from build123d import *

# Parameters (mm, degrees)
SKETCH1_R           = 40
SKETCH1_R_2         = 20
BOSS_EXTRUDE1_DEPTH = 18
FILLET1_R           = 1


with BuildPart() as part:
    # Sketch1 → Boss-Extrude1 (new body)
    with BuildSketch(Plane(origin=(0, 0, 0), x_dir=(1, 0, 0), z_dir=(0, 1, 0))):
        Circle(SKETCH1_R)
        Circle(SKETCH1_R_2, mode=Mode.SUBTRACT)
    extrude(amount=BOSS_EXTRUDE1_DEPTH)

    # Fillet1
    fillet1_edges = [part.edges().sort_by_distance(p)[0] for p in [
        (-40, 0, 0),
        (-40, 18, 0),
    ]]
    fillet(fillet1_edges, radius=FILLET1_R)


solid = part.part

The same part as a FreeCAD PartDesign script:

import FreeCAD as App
import Part
import Sketcher

V = App.Vector
Q = App.Units.Quantity


def edges_at(feature, points):
    """Names of the edges that pass closest to the given points."""
    edges = feature.Shape.Edges
    near = lambda p: min(range(len(edges)), key=lambda i: edges[i].distToShape(Part.Vertex(*p))[0])
    return sorted({f"Edge{near(p) + 1}" for p in points})

doc = App.newDocument("Part")
body = doc.addObject("PartDesign::Body", "Body")

# Sketch on XZ plane
sketch1 = doc.addObject("Sketcher::SketchObject", "Sketch")
body.addObject(sketch1)
sketch1.AttachmentSupport = (doc.XZ_Plane, [""])
sketch1.MapMode = "FlatFace"
sketch1.addGeometry(Part.Circle(V(0, 0, 0), V(0, 0, 1), 40), False)
sketch1.addGeometry(Part.Circle(V(0, 0, 0), V(0, 0, 1), 20), False)
sketch1.addConstraint(Sketcher.Constraint("Coincident", 0, 3, -1, 1))
sketch1.addConstraint(Sketcher.Constraint("Coincident", 1, 3, -1, 1))
sketch1.addConstraint(Sketcher.Constraint("Diameter", 0, Q("80 mm")))
sketch1.addConstraint(Sketcher.Constraint("Diameter", 1, Q("40 mm")))
pad1 = doc.addObject("PartDesign::Pad", "Pad")
body.addObject(pad1)
pad1.Profile = sketch1
pad1.Length = 18
pad1.Reversed = True
doc.recompute()

fillet = doc.addObject("PartDesign::Fillet", "Fillet")
body.addObject(fillet)
fillet.Base = (pad1, edges_at(pad1, [(-40, 0, 0), (-40, 18, 0)]))
fillet.Radius = 1

doc.recompute()
